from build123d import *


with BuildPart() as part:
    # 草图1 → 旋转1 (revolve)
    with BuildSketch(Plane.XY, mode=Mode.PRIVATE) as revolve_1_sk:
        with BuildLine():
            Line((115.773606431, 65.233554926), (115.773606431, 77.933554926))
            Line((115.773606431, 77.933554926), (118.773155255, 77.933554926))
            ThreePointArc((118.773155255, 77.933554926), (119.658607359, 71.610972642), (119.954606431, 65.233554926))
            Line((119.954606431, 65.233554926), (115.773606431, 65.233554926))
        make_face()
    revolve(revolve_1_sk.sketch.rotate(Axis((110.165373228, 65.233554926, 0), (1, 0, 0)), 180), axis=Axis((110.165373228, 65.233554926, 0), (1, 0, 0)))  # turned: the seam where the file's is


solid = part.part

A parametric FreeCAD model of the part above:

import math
import FreeCAD as App
import Part
import Sketcher

V = App.Vector

doc = App.newDocument("Part")
params = doc.addObject("Spreadsheet::Sheet", "Params")
for row, (alias, value) in enumerate([
    ("sketch1_radius", "68.85 mm"),
    ("sketch1_height", "12.7 mm"),
    ("revolution_angle", "360 deg"),
], start=1):
    params.set(f"A{row}", alias)
    params.set(f"B{row}", "=" + value)
    params.setAlias(f"B{row}", alias)

body = doc.addObject("PartDesign::Body", "Body")

# Sketch on XY plane
sketch1 = body.newObject("Sketcher::SketchObject", "Sketch")
sketch1.AttachmentSupport = (doc.getObject("XY_Plane"), [""])
sketch1.MapMode = "FlatFace"
sketch1.addGeometry([
    Part.LineSegment(V(115.8, 77.9, 0), V(115.8, 65.2, 0)),
    Part.LineSegment(V(115.8, 65.2, 0), V(120, 65.2, 0)),
    Part.ArcOfCircle(Part.Circle(V(51.1, 65.2, 0), V(0, 0, 1), 68.9), math.radians(0), math.radians(10.63)),
    Part.LineSegment(V(118.8, 77.9, 0), V(115.8, 77.9, 0)),
], False)
sketch1.addGeometry(Part.LineSegment(V(51.1, 65.2, 0), V(120, 65.2, 0)), True)  # axis
sketch1.addConstraint([
    Sketcher.Constraint("Coincident", 0, 2, 1, 1),
    Sketcher.Constraint("Coincident", 1, 2, 2, 1),
    Sketcher.Constraint("Coincident", 2, 2, 3, 1),
    Sketcher.Constraint("Coincident", 3, 2, 0, 1),
    Sketcher.Constraint("Vertical", 0),
    Sketcher.Constraint("Horizontal", 1),
    Sketcher.Constraint("Horizontal", 3),
    Sketcher.Constraint("Horizontal", 4),
    Sketcher.Constraint("Coincident", 4, 1, 2, 3),
    Sketcher.Constraint("Coincident", 4, 2, 1, 2),
    Sketcher.Constraint("Radius", 2, 68.85),
    Sketcher.Constraint("DistanceY", 0, 2, 0, 1, 12.7),
    Sketcher.Constraint("DistanceX", 1, 1, 1, 2, 4.181),
    Sketcher.Constraint("DistanceX", -1, 1, 2, 3, 51.104606),
    Sketcher.Constraint("DistanceY", -1, 1, 2, 3, 65.233555),
])
sketch1.setExpression("Constraints[10]", "Params.sketch1_radius")
sketch1.setExpression("Constraints[11]", "Params.sketch1_height")
revolution = body.newObject("PartDesign::Revolution", "Revolution")
revolution.Profile = sketch1
revolution.ReferenceAxis = (sketch1, ["Axis0"])
revolution.setExpression("Angle", "Params.revolution_angle")

doc.recompute()
